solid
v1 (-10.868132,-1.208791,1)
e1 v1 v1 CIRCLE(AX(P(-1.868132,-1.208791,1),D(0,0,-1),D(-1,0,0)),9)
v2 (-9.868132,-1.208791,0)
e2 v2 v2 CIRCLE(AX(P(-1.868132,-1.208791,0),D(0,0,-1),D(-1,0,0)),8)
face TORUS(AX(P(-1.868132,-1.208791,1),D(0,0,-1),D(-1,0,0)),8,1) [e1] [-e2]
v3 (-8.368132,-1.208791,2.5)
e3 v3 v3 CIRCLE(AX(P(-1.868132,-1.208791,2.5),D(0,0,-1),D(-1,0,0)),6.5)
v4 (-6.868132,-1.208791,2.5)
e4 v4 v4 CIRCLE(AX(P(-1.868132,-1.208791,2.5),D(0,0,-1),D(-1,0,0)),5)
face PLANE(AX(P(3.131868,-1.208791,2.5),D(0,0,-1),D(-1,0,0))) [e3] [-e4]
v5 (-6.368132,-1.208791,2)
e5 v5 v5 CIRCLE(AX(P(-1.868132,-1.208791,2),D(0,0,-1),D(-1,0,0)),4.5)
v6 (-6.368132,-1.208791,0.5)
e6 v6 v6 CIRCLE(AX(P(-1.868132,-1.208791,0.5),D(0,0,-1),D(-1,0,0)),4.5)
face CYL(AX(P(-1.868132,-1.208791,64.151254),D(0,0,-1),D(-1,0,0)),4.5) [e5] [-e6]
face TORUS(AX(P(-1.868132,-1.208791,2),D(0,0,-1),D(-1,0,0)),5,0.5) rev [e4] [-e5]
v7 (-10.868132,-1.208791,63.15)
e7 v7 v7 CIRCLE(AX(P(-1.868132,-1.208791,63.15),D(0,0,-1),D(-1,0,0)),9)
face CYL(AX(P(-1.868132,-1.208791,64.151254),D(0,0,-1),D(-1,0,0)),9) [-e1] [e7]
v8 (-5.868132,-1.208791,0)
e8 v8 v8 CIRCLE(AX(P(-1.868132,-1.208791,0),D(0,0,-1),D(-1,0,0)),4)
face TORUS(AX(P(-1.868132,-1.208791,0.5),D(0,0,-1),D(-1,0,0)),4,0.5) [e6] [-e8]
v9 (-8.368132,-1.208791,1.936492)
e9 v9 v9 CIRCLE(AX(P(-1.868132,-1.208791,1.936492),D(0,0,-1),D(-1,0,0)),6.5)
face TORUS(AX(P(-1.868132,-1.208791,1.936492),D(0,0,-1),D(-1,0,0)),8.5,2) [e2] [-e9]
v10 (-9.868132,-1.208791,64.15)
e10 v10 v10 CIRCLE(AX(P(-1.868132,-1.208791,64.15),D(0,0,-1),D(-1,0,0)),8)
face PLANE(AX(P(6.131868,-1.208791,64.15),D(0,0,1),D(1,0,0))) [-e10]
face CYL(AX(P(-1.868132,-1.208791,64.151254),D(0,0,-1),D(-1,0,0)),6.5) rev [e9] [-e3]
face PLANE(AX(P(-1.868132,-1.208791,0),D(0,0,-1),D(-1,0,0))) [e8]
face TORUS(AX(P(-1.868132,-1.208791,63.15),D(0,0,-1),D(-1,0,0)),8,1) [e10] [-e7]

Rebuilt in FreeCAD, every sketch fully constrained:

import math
import FreeCAD as App
import Part
import Sketcher

V = App.Vector
Q = App.Units.Quantity

doc = App.newDocument("Part")
params = doc.addObject("Spreadsheet::Sheet", "Params")
for row, (alias, value) in enumerate([
    ("sketch1_radius", "2 mm"),
    ("sketch1_radius2", "1 mm"),
    ("sketch1_radius3", "0.5 mm"),
    ("sketch1_width", "8 mm"),
    ("sketch1_width2", "4 mm"),
    ("revolution_angle", "360 deg"),
], start=1):
    params.set(f"A{row}", alias)
    params.set(f"B{row}", "=" + value)
    params.setAlias(f"B{row}", alias)

body = doc.addObject("PartDesign::Body", "Body")

# Sketch on XZ plane
sketch1 = doc.addObject("Sketcher::SketchObject", "Sketch")
body.addObject(sketch1)
sketch1.AttachmentSupport = (doc.XZ_Plane, [""])
sketch1.MapMode = "FlatFace"
sketch1.AttachmentOffset = App.Placement(V(0, 0, 1.208791), App.Rotation())
sketch1.addGeometry([
    Part.LineSegment(V(6.131868, 64.15, 0), V(-1.868132, 64.15, 0)),  # 0
    Part.LineSegment(V(-1.868132, 64.15, 0), V(-1.868132, 0, 0)),  # 1
    Part.LineSegment(V(-1.868132, 0, 0), V(2.131868, 0, 0)),  # 2
    Part.ArcOfCircle(Part.Circle(V(2.131868, 0.5, 0), V(0, 0, 1), 0.5), math.radians(-90), math.radians(0)),  # 3
    Part.LineSegment(V(2.631868, 0.5, 0), V(2.631868, 2, 0)),  # 4
    Part.ArcOfCircle(Part.Circle(V(3.131868, 2, 0), V(0, 0, 1), 0.5), math.radians(90), math.radians(180)),  # 5
    Part.LineSegment(V(3.131868, 2.5, 0), V(4.631868, 2.5, 0)),  # 6
    Part.LineSegment(V(4.631868, 2.5, 0), V(4.631868, 1.936492, 0)),  # 7
    Part.ArcOfCircle(Part.Circle(V(6.631868, 1.936492, 0), V(0, 0, 1), 2), math.radians(-180), math.radians(-104.477512)),  # 8
    Part.ArcOfCircle(Part.Circle(V(6.131868, 1, 0), V(0, 0, 1), 1), math.radians(-90), math.radians(0)),  # 9
    Part.LineSegment(V(7.131868, 1, 0), V(7.131868, 63.15, 0)),  # 10
    Part.ArcOfCircle(Part.Circle(V(6.131868, 63.15, 0), V(0, 0, 1), 1), math.radians(0), math.radians(90)),  # 11
], False)
sketch1.addGeometry(Part.LineSegment(V(-1.868132, 64.15, 0), V(-1.868132, 0, 0)), True)  # axis
sketch1.addConstraint([
    Sketcher.Constraint("Coincident", 0, 2, 1, 1),
    Sketcher.Constraint("Coincident", 1, 2, 2, 1),
    Sketcher.Constraint("Tangent", 2, 2, 3, 1),
    Sketcher.Constraint("Tangent", 3, 2, 4, 1),
    Sketcher.Constraint("Tangent", 4, 2, 5, 2),
    Sketcher.Constraint("Tangent", 5, 1, 6, 1),
    Sketcher.Constraint("Coincident", 6, 2, 7, 1),
    Sketcher.Constraint("Tangent", 7, 2, 8, 1),
    Sketcher.Constraint("Coincident", 8, 2, 9, 1),
    Sketcher.Constraint("Tangent", 9, 2, 10, 1),
    Sketcher.Constraint("Tangent", 10, 2, 11, 1),
    Sketcher.Constraint("Tangent", 11, 2, 0, 1),
    Sketcher.Constraint("Horizontal", 0),
    Sketcher.Constraint("Vertical", 1),
    Sketcher.Constraint("Horizontal", 2),
    Sketcher.Constraint("Vertical", 4),
    Sketcher.Constraint("Horizontal", 6),
    Sketcher.Constraint("Vertical", 7),
    Sketcher.Constraint("Vertical", 10),
    Sketcher.Constraint("Vertical", 12),
    Sketcher.Constraint("Coincident", 12, 1, 0, 2),
    Sketcher.Constraint("Equal", 3, 5),
    Sketcher.Constraint("Equal", 9, 11),
    Sketcher.Constraint("PointOnObject", 1, 2, -1),
    Sketcher.Constraint("PointOnObject", 8, 2, -1),
    Sketcher.Constraint("PointOnObject", 12, 2, -1),
    Sketcher.Constraint("Vertical", 11, 3, 8, 2),
    Sketcher.Constraint("Equal", 6, 4),
    Sketcher.Constraint("Radius", 8, Q("2 mm")),
    Sketcher.Constraint("Radius", 9, Q("1 mm")),
    Sketcher.Constraint("Radius", 3, Q("0.5 mm")),
    Sketcher.Constraint("DistanceX", 0, 2, 0, 1, Q("8 mm")),
    Sketcher.Constraint("DistanceX", 2, 1, 2, 2, Q("4 mm")),
    Sketcher.Constraint("DistanceX", 6, 1, 6, 2, Q("1.5 mm")),
    Sketcher.Constraint("DistanceY", 1, 2, 1, 1, Q("64.15 mm")),
    Sketcher.Constraint("DistanceX", -1, 1, 3, 3, Q("2.131868 mm")),
])
sketch1.setExpression("Constraints[28]", "Params.sketch1_radius")
sketch1.setExpression("Constraints[29]", "Params.sketch1_radius2")
sketch1.setExpression("Constraints[30]", "Params.sketch1_radius3")
sketch1.setExpression("Constraints[31]", "Params.sketch1_width")
sketch1.setExpression("Constraints[32]", "Params.sketch1_width2")
revolution = doc.addObject("PartDesign::Revolution", "Revolution")
body.addObject(revolution)
revolution.Profile = sketch1
revolution.ReferenceAxis = (sketch1, ["Axis0"])
revolution.setExpression("Angle", "Params.revolution_angle")

doc.recompute()
